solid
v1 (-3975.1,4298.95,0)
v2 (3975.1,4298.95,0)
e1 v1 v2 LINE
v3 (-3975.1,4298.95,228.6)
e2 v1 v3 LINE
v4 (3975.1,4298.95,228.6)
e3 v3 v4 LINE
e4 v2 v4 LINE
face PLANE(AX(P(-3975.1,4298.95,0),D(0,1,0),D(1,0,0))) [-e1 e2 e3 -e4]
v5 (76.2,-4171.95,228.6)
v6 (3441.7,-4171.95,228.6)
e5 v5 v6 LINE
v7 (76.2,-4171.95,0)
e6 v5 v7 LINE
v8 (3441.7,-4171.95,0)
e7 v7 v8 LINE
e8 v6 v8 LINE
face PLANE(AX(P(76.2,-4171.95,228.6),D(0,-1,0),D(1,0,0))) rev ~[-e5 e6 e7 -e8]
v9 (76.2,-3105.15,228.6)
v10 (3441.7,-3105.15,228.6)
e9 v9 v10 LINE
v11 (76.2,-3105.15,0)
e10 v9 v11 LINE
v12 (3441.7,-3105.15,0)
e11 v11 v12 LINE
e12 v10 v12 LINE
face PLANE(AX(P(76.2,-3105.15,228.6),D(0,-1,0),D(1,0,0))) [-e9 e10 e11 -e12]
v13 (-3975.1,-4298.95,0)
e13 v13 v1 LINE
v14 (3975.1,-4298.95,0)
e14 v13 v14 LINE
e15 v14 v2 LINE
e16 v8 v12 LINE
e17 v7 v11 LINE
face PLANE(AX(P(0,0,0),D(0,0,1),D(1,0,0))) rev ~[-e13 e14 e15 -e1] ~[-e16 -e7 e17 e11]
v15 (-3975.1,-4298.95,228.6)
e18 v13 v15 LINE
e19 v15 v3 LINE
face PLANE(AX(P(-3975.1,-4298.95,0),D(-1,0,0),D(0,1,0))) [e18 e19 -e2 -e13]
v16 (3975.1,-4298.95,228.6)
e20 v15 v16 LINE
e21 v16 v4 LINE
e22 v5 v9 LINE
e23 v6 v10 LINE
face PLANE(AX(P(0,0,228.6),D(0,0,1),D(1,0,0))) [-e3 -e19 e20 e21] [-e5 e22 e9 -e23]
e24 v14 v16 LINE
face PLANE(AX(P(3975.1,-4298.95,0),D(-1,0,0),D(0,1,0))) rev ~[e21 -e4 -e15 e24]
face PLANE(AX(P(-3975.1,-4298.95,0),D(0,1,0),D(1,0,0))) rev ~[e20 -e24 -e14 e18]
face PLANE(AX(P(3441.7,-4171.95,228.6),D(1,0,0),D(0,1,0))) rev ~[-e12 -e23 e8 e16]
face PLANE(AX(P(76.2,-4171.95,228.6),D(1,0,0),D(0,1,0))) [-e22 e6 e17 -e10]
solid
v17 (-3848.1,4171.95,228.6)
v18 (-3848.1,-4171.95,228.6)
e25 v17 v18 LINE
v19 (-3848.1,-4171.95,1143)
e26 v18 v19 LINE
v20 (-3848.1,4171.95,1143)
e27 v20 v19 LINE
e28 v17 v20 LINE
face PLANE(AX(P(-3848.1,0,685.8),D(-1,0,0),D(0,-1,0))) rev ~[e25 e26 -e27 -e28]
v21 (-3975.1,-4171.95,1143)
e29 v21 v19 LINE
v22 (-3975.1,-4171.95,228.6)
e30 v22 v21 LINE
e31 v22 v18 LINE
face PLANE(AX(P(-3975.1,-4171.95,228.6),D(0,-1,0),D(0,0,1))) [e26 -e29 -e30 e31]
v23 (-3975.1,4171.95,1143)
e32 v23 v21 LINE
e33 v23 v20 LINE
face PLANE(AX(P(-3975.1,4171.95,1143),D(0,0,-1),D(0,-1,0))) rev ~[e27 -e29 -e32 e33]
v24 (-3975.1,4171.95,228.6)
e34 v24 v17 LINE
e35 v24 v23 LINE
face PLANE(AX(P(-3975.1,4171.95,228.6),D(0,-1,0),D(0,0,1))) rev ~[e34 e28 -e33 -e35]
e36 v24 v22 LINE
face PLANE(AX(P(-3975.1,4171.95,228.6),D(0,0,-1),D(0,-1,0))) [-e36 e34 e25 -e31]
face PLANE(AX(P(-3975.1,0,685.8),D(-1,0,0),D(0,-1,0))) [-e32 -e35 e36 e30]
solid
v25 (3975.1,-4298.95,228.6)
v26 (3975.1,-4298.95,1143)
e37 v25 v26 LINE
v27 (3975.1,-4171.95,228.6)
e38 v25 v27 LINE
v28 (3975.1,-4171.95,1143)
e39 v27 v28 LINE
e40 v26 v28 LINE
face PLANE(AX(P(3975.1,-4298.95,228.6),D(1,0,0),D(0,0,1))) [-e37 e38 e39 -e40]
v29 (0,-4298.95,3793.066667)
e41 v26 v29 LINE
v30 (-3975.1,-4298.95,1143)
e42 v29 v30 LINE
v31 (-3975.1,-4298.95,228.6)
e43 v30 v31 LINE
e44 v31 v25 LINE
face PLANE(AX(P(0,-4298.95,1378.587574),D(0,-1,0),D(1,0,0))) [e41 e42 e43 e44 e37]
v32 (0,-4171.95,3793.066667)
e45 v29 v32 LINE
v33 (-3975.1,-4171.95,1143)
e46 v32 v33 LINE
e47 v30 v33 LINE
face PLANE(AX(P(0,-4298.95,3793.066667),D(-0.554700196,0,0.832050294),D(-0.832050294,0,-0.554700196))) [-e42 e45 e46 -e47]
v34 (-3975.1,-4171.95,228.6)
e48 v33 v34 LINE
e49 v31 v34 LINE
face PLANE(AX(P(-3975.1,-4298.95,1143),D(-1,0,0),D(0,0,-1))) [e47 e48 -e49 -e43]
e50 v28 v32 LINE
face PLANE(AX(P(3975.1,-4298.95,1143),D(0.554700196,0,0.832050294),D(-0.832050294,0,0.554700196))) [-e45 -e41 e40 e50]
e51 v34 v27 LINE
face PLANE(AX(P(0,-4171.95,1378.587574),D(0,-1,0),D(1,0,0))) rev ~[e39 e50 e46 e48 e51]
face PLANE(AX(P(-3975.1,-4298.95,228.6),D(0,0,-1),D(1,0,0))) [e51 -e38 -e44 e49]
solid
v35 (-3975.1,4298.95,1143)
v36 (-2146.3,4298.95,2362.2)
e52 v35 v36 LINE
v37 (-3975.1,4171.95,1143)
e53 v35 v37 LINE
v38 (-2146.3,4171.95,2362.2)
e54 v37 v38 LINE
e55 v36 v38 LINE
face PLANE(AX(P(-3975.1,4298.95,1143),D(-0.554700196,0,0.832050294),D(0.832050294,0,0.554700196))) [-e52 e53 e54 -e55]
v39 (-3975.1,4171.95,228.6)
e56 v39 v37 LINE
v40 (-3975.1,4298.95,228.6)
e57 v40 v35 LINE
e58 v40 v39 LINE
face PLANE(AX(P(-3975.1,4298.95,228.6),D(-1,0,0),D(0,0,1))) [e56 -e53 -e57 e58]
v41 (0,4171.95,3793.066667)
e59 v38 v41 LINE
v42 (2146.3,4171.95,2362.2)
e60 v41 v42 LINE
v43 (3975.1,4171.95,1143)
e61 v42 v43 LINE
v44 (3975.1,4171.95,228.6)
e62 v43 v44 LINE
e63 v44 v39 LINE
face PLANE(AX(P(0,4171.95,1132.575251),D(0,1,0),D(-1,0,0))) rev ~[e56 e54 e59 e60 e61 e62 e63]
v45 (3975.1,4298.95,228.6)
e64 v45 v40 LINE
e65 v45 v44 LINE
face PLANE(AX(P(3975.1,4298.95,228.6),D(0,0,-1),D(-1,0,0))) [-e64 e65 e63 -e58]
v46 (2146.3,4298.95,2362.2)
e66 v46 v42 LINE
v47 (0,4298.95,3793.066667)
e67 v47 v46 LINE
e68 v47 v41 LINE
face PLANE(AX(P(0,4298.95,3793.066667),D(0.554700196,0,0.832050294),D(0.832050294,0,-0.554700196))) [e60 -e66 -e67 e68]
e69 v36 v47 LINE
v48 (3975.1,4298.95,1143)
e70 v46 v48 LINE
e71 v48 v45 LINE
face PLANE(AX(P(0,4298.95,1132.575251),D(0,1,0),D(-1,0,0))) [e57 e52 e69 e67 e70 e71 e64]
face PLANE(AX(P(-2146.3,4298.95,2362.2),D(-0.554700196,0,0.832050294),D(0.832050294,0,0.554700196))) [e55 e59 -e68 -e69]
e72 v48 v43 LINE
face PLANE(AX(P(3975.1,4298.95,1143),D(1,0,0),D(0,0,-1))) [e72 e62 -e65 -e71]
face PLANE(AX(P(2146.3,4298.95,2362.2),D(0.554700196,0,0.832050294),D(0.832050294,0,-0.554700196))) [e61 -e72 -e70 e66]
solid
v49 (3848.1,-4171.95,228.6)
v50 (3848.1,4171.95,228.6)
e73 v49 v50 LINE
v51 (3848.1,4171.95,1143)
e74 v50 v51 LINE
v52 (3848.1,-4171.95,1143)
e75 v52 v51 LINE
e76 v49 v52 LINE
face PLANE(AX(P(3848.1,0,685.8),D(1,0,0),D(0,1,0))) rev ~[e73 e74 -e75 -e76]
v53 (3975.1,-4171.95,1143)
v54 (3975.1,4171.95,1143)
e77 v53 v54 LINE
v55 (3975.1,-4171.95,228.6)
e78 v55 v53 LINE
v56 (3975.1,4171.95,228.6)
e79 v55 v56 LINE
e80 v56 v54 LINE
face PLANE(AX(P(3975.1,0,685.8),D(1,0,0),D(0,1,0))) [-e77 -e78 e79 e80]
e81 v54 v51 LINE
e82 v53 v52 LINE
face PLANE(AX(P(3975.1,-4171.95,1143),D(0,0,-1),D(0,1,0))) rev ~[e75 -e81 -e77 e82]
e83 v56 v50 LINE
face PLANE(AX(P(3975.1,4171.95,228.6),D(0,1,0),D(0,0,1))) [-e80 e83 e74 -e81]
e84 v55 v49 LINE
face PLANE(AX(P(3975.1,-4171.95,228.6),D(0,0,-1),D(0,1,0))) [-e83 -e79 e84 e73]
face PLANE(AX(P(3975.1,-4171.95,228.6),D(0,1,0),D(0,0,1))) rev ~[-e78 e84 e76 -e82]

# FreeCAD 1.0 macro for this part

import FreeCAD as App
import Part
import Sketcher
from FreeCAD import Vector
Q = App.Units.Quantity

doc = App.newDocument("Part")
params = doc.addObject("Spreadsheet::Sheet", "Params")
for row, (alias, value) in enumerate([
    ("sketch1_width", "313 in"),
    ("sketch1_height", "338.5 in"),
    ("pad1_length", "9 in"),
    ("sketch2_height", "42 in"),
    ("sketch2_width", "132.5 in"),
    ("sketch3_width", "313 in"),
    ("sketch3_height", "36 in"),
    ("pad2_length", "5 in"),
    ("sketch4_width", "313 in"),
    ("sketch4_height", "36 in"),
    ("pad3_length", "5 in"),
    ("sketch5_height", "36 in"),
    ("sketch5_width", "328.5 in"),
    ("pad4_length", "5 in"),
    ("sketch6_height", "36 in"),
    ("sketch6_width", "328.5 in"),
    ("pad5_length", "5 in"),
], start=1):
    params.set(f"A{row}", alias)
    params.set(f"B{row}", "=" + value)
    params.setAlias(f"B{row}", alias)

body = doc.addObject("PartDesign::Body", "Body")

# Sketch on XY plane
sketch1 = body.newObject("Sketcher::SketchObject", "Sketch")
sketch1.AttachmentSupport = (doc.getObject("XY_Plane"), [""])
sketch1.MapMode = "FlatFace"
sketch1.addGeometry([
    Part.LineSegment(Vector(-3975.1, 4298.95, 0), Vector(-3975.1, -4298.95, 0)),
    Part.LineSegment(Vector(-3975.1, -4298.95, 0), Vector(3975.1, -4298.95, 0)),
    Part.LineSegment(Vector(3975.1, -4298.95, 0), Vector(3975.1, 4298.95, 0)),
    Part.LineSegment(Vector(3975.1, 4298.95, 0), Vector(-3975.1, 4298.95, 0)),
], False)
sketch1.addConstraint([
    Sketcher.Constraint("Coincident", 0, 2, 1, 1),
    Sketcher.Constraint("Coincident", 1, 2, 2, 1),
    Sketcher.Constraint("Coincident", 2, 2, 3, 1),
    Sketcher.Constraint("Coincident", 3, 2, 0, 1),
    Sketcher.Constraint("Vertical", 0),
    Sketcher.Constraint("Horizontal", 1),
    Sketcher.Constraint("Vertical", 2),
    Sketcher.Constraint("Horizontal", 3),
    Sketcher.Constraint("Symmetric", 0, 2, 2, 2, -1, 1),
    Sketcher.Constraint("DistanceX", 1, 1, 1, 2, Q("313 in")),
    Sketcher.Constraint("DistanceY", 0, 2, 0, 1, Q("338.5 in")),
])
sketch1.setExpression("Constraints[9]", "Params.sketch1_width")
sketch1.setExpression("Constraints[10]", "Params.sketch1_height")
pad1 = body.newObject("PartDesign::Pad", "Pad")
pad1.Profile = sketch1
pad1.setExpression("Length", "Params.pad1_length")

# Sketch on XY plane
sketch2 = body.newObject("Sketcher::SketchObject", "Sketch001")
sketch2.AttachmentSupport = (doc.getObject("XY_Plane"), [""])
sketch2.MapMode = "FlatFace"
sketch2.AttachmentOffset = App.Placement(Vector(0, 0, 9 * 25.4), App.Rotation())
sketch2.addGeometry([
    Part.LineSegment(Vector(76.2, -3105.15, 0), Vector(76.2, -4171.95, 0)),
    Part.LineSegment(Vector(76.2, -4171.95, 0), Vector(3441.7, -4171.95, 0)),
    Part.LineSegment(Vector(3441.7, -4171.95, 0), Vector(3441.7, -3105.15, 0)),
    Part.LineSegment(Vector(3441.7, -3105.15, 0), Vector(76.2, -3105.15, 0)),
], False)
sketch2.addConstraint([
    Sketcher.Constraint("Coincident", 0, 2, 1, 1),
    Sketcher.Constraint("Coincident", 1, 2, 2, 1),
    Sketcher.Constraint("Coincident", 2, 2, 3, 1),
    Sketcher.Constraint("Coincident", 3, 2, 0, 1),
    Sketcher.Constraint("Vertical", 0),
    Sketcher.Constraint("Horizontal", 1),
    Sketcher.Constraint("Vertical", 2),
    Sketcher.Constraint("Horizontal", 3),
    Sketcher.Constraint("DistanceY", 0, 2, 0, 1, Q("42 in")),
    Sketcher.Constraint("DistanceX", 1, 1, 1, 2, Q("132.5 in")),
    Sketcher.Constraint("DistanceX", -1, 1, 0, 2, Q("3 in")),
    Sketcher.Constraint("DistanceY", 0, 2, -1, 1, Q("164.25 in")),
])
sketch2.setExpression("Constraints[8]", "Params.sketch2_height")
sketch2.setExpression("Constraints[9]", "Params.sketch2_width")
pocket1 = body.newObject("PartDesign::Pocket", "Pocket")
pocket1.Profile = sketch2
pocket1.Type = "ThroughAll"
body2 = doc.addObject("PartDesign::Body", "Body001")

# Sketch on XZ plane
sketch3 = body2.newObject("Sketcher::SketchObject", "Sketch002")
sketch3.AttachmentSupport = (doc.getObject("XZ_Plane001"), [""])
sketch3.MapMode = "FlatFace"
sketch3.AttachmentOffset = App.Placement(Vector(0, 0, 169.25 * 25.4), App.Rotation())
sketch3.addGeometry([
    Part.LineSegment(Vector(-3975.1, 1143, 0), Vector(-3975.1, 228.6, 0)),  # 0
    Part.LineSegment(Vector(-3975.1, 228.6, 0), Vector(3975.1, 228.6, 0)),  # 1
    Part.LineSegment(Vector(3975.1, 228.6, 0), Vector(3975.1, 1143, 0)),  # 2
    Part.LineSegment(Vector(3975.1, 1143, 0), Vector(0, 3793.066667, 0)),  # 3
    Part.LineSegment(Vector(0, 3793.066667, 0), Vector(-3975.1, 1143, 0)),  # 4
], False)
sketch3.addConstraint([
    Sketcher.Constraint("Coincident", 0, 2, 1, 1),
    Sketcher.Constraint("Coincident", 1, 2, 2, 1),
    Sketcher.Constraint("Coincident", 2, 2, 3, 1),
    Sketcher.Constraint("Coincident", 3, 2, 4, 1),
    Sketcher.Constraint("Coincident", 4, 2, 0, 1),
    Sketcher.Constraint("Vertical", 0),
    Sketcher.Constraint("Horizontal", 1),
    Sketcher.Constraint("Vertical", 2),
    Sketcher.Constraint("Symmetric", 2, 2, 4, 2, -2),
    Sketcher.Constraint("PointOnObject", 3, 2, -2),
    Sketcher.Constraint("DistanceX", 1, 1, 1, 2, Q("313 in")),
    Sketcher.Constraint("DistanceY", 0, 2, 0, 1, Q("36 in")),
    Sketcher.Constraint("DistanceY", -1, 1, 0, 2, Q("9 in")),
    Sketcher.Constraint("Distance", 3, Q("4777.475625 mm")),
])
sketch3.setExpression("Constraints[10]", "Params.sketch3_width")
sketch3.setExpression("Constraints[11]", "Params.sketch3_height")
pad2 = body2.newObject("PartDesign::Pad", "Pad001")
pad2.Profile = sketch3
pad2.setExpression("Length", "Params.pad2_length")
pad2.Reversed = True
body3 = doc.addObject("PartDesign::Body", "Body002")

# Sketch on XZ plane
sketch4 = body3.newObject("Sketcher::SketchObject", "Sketch003")
sketch4.AttachmentSupport = (doc.getObject("XZ_Plane002"), [""])
sketch4.MapMode = "FlatFace"
sketch4.AttachmentOffset = App.Placement(Vector(0, 0, -169.25 * 25.4), App.Rotation())
sketch4.addGeometry([
    Part.LineSegment(Vector(3975.1, 1143, 0), Vector(3975.1, 228.6, 0)),  # 0
    Part.LineSegment(Vector(3975.1, 228.6, 0), Vector(-3975.1, 228.6, 0)),  # 1
    Part.LineSegment(Vector(-3975.1, 228.6, 0), Vector(-3975.1, 1143, 0)),  # 2
    Part.LineSegment(Vector(-3975.1, 1143, 0), Vector(-2146.3, 2362.2, 0)),  # 3
    Part.LineSegment(Vector(-2146.3, 2362.2, 0), Vector(0, 3793.066667, 0)),  # 4
    Part.LineSegment(Vector(0, 3793.066667, 0), Vector(2146.3, 2362.2, 0)),  # 5
    Part.LineSegment(Vector(2146.3, 2362.2, 0), Vector(3975.1, 1143, 0)),  # 6
], False)
sketch4.addConstraint([
    Sketcher.Constraint("Coincident", 0, 2, 1, 1),
    Sketcher.Constraint("Coincident", 1, 2, 2, 1),
    Sketcher.Constraint("Coincident", 2, 2, 3, 1),
    Sketcher.Constraint("Coincident", 3, 2, 4, 1),
    Sketcher.Constraint("Coincident", 4, 2, 5, 1),
    Sketcher.Constraint("Coincident", 5, 2, 6, 1),
    Sketcher.Constraint("Coincident", 6, 2, 0, 1),
    Sketcher.Constraint("Vertical", 0),
    Sketcher.Constraint("Horizontal", 1),
    Sketcher.Constraint("Vertical", 2),
    Sketcher.Constraint("Symmetric", 3, 2, 5, 2, -2),
    Sketcher.Constraint("Symmetric", 2, 2, 6, 2, -2),
    Sketcher.Constraint("PointOnObject", 4, 2, -2),
    Sketcher.Constraint("Parallel", 3, 4),
    Sketcher.Constraint("DistanceX", 1, 2, 1, 1, Q("313 in")),
    Sketcher.Constraint("DistanceY", 0, 2, 0, 1, Q("36 in")),
    Sketcher.Constraint("DistanceY", -1, 1, 0, 2, Q("9 in")),
    Sketcher.Constraint("DistanceY", -1, 1, 3, 2, Q("93 in")),
    Sketcher.Constraint("DistanceX", 2, 2, 3, 2, Q("72 in")),
])
sketch4.setExpression("Constraints[14]", "Params.sketch4_width")
sketch4.setExpression("Constraints[15]", "Params.sketch4_height")
pad3 = body3.newObject("PartDesign::Pad", "Pad002")
pad3.Profile = sketch4
pad3.setExpression("Length", "Params.pad3_length")
body4 = doc.addObject("PartDesign::Body", "Body003")

# Sketch on YZ plane
sketch5 = body4.newObject("Sketcher::SketchObject", "Sketch004")
sketch5.AttachmentSupport = (doc.getObject("YZ_Plane003"), [""])
sketch5.MapMode = "FlatFace"
sketch5.AttachmentOffset = App.Placement(Vector(0, 0, -156.5 * 25.4), App.Rotation())
sketch5.addGeometry([
    Part.LineSegment(Vector(4171.95, 1143, 0), Vector(4171.95, 228.6, 0)),
    Part.LineSegment(Vector(4171.95, 228.6, 0), Vector(-4171.95, 228.6, 0)),
    Part.LineSegment(Vector(-4171.95, 228.6, 0), Vector(-4171.95, 1143, 0)),
    Part.LineSegment(Vector(-4171.95, 1143, 0), Vector(4171.95, 1143, 0)),
], False)
sketch5.addConstraint([
    Sketcher.Constraint("Coincident", 0, 2, 1, 1),
    Sketcher.Constraint("Coincident", 1, 2, 2, 1),
    Sketcher.Constraint("Coincident", 2, 2, 3, 1),
    Sketcher.Constraint("Coincident", 3, 2, 0, 1),
    Sketcher.Constraint("Vertical", 0),
    Sketcher.Constraint("Horizontal", 1),
    Sketcher.Constraint("Vertical", 2),
    Sketcher.Constraint("Horizontal", 3),
    Sketcher.Constraint("DistanceY", 0, 2, 0, 1, Q("36 in")),
    Sketcher.Constraint("DistanceX", 1, 2, 1, 1, Q("328.5 in")),
    Sketcher.Constraint("DistanceY", -1, 1, 0, 2, Q("9 in")),
    Sketcher.Constraint("DistanceX", -1, 1, 0, 2, Q("164.25 in")),
])
sketch5.setExpression("Constraints[8]", "Params.sketch5_height")
sketch5.setExpression("Constraints[9]", "Params.sketch5_width")
pad4 = body4.newObject("PartDesign::Pad", "Pad003")
pad4.Profile = sketch5
pad4.setExpression("Length", "Params.pad4_length")
body5 = doc.addObject("PartDesign::Body", "Body004")

# Sketch on YZ plane
sketch6 = body5.newObject("Sketcher::SketchObject", "Sketch005")
sketch6.AttachmentSupport = (doc.getObject("YZ_Plane004"), [""])
sketch6.MapMode = "FlatFace"
sketch6.AttachmentOffset = App.Placement(Vector(0, 0, 156.5 * 25.4), App.Rotation())
sketch6.addGeometry([
    Part.LineSegment(Vector(-4171.95, 1143, 0), Vector(-4171.95, 228.6, 0)),
    Part.LineSegment(Vector(-4171.95, 228.6, 0), Vector(4171.95, 228.6, 0)),
    Part.LineSegment(Vector(4171.95, 228.6, 0), Vector(4171.95, 1143, 0)),
    Part.LineSegment(Vector(4171.95, 1143, 0), Vector(-4171.95, 1143, 0)),
], False)
sketch6.addConstraint([
    Sketcher.Constraint("Coincident", 0, 2, 1, 1),
    Sketcher.Constraint("Coincident", 1, 2, 2, 1),
    Sketcher.Constraint("Coincident", 2, 2, 3, 1),
    Sketcher.Constraint("Coincident", 3, 2, 0, 1),
    Sketcher.Constraint("Vertical", 0),
    Sketcher.Constraint("Horizontal", 1),
    Sketcher.Constraint("Vertical", 2),
    Sketcher.Constraint("Horizontal", 3),
    Sketcher.Constraint("DistanceY", 0, 2, 0, 1, Q("36 in")),
    Sketcher.Constraint("DistanceX", 1, 1, 1, 2, Q("328.5 in")),
    Sketcher.Constraint("DistanceY", -1, 1, 0, 2, Q("9 in")),
    Sketcher.Constraint("DistanceX", 0, 2, -1, 1, Q("164.25 in")),
])
sketch6.setExpression("Constraints[8]", "Params.sketch6_height")
sketch6.setExpression("Constraints[9]", "Params.sketch6_width")
pad5 = body5.newObject("PartDesign::Pad", "Pad004")
pad5.Profile = sketch6
pad5.setExpression("Length", "Params.pad5_length")
pad5.Reversed = True

doc.recompute()
